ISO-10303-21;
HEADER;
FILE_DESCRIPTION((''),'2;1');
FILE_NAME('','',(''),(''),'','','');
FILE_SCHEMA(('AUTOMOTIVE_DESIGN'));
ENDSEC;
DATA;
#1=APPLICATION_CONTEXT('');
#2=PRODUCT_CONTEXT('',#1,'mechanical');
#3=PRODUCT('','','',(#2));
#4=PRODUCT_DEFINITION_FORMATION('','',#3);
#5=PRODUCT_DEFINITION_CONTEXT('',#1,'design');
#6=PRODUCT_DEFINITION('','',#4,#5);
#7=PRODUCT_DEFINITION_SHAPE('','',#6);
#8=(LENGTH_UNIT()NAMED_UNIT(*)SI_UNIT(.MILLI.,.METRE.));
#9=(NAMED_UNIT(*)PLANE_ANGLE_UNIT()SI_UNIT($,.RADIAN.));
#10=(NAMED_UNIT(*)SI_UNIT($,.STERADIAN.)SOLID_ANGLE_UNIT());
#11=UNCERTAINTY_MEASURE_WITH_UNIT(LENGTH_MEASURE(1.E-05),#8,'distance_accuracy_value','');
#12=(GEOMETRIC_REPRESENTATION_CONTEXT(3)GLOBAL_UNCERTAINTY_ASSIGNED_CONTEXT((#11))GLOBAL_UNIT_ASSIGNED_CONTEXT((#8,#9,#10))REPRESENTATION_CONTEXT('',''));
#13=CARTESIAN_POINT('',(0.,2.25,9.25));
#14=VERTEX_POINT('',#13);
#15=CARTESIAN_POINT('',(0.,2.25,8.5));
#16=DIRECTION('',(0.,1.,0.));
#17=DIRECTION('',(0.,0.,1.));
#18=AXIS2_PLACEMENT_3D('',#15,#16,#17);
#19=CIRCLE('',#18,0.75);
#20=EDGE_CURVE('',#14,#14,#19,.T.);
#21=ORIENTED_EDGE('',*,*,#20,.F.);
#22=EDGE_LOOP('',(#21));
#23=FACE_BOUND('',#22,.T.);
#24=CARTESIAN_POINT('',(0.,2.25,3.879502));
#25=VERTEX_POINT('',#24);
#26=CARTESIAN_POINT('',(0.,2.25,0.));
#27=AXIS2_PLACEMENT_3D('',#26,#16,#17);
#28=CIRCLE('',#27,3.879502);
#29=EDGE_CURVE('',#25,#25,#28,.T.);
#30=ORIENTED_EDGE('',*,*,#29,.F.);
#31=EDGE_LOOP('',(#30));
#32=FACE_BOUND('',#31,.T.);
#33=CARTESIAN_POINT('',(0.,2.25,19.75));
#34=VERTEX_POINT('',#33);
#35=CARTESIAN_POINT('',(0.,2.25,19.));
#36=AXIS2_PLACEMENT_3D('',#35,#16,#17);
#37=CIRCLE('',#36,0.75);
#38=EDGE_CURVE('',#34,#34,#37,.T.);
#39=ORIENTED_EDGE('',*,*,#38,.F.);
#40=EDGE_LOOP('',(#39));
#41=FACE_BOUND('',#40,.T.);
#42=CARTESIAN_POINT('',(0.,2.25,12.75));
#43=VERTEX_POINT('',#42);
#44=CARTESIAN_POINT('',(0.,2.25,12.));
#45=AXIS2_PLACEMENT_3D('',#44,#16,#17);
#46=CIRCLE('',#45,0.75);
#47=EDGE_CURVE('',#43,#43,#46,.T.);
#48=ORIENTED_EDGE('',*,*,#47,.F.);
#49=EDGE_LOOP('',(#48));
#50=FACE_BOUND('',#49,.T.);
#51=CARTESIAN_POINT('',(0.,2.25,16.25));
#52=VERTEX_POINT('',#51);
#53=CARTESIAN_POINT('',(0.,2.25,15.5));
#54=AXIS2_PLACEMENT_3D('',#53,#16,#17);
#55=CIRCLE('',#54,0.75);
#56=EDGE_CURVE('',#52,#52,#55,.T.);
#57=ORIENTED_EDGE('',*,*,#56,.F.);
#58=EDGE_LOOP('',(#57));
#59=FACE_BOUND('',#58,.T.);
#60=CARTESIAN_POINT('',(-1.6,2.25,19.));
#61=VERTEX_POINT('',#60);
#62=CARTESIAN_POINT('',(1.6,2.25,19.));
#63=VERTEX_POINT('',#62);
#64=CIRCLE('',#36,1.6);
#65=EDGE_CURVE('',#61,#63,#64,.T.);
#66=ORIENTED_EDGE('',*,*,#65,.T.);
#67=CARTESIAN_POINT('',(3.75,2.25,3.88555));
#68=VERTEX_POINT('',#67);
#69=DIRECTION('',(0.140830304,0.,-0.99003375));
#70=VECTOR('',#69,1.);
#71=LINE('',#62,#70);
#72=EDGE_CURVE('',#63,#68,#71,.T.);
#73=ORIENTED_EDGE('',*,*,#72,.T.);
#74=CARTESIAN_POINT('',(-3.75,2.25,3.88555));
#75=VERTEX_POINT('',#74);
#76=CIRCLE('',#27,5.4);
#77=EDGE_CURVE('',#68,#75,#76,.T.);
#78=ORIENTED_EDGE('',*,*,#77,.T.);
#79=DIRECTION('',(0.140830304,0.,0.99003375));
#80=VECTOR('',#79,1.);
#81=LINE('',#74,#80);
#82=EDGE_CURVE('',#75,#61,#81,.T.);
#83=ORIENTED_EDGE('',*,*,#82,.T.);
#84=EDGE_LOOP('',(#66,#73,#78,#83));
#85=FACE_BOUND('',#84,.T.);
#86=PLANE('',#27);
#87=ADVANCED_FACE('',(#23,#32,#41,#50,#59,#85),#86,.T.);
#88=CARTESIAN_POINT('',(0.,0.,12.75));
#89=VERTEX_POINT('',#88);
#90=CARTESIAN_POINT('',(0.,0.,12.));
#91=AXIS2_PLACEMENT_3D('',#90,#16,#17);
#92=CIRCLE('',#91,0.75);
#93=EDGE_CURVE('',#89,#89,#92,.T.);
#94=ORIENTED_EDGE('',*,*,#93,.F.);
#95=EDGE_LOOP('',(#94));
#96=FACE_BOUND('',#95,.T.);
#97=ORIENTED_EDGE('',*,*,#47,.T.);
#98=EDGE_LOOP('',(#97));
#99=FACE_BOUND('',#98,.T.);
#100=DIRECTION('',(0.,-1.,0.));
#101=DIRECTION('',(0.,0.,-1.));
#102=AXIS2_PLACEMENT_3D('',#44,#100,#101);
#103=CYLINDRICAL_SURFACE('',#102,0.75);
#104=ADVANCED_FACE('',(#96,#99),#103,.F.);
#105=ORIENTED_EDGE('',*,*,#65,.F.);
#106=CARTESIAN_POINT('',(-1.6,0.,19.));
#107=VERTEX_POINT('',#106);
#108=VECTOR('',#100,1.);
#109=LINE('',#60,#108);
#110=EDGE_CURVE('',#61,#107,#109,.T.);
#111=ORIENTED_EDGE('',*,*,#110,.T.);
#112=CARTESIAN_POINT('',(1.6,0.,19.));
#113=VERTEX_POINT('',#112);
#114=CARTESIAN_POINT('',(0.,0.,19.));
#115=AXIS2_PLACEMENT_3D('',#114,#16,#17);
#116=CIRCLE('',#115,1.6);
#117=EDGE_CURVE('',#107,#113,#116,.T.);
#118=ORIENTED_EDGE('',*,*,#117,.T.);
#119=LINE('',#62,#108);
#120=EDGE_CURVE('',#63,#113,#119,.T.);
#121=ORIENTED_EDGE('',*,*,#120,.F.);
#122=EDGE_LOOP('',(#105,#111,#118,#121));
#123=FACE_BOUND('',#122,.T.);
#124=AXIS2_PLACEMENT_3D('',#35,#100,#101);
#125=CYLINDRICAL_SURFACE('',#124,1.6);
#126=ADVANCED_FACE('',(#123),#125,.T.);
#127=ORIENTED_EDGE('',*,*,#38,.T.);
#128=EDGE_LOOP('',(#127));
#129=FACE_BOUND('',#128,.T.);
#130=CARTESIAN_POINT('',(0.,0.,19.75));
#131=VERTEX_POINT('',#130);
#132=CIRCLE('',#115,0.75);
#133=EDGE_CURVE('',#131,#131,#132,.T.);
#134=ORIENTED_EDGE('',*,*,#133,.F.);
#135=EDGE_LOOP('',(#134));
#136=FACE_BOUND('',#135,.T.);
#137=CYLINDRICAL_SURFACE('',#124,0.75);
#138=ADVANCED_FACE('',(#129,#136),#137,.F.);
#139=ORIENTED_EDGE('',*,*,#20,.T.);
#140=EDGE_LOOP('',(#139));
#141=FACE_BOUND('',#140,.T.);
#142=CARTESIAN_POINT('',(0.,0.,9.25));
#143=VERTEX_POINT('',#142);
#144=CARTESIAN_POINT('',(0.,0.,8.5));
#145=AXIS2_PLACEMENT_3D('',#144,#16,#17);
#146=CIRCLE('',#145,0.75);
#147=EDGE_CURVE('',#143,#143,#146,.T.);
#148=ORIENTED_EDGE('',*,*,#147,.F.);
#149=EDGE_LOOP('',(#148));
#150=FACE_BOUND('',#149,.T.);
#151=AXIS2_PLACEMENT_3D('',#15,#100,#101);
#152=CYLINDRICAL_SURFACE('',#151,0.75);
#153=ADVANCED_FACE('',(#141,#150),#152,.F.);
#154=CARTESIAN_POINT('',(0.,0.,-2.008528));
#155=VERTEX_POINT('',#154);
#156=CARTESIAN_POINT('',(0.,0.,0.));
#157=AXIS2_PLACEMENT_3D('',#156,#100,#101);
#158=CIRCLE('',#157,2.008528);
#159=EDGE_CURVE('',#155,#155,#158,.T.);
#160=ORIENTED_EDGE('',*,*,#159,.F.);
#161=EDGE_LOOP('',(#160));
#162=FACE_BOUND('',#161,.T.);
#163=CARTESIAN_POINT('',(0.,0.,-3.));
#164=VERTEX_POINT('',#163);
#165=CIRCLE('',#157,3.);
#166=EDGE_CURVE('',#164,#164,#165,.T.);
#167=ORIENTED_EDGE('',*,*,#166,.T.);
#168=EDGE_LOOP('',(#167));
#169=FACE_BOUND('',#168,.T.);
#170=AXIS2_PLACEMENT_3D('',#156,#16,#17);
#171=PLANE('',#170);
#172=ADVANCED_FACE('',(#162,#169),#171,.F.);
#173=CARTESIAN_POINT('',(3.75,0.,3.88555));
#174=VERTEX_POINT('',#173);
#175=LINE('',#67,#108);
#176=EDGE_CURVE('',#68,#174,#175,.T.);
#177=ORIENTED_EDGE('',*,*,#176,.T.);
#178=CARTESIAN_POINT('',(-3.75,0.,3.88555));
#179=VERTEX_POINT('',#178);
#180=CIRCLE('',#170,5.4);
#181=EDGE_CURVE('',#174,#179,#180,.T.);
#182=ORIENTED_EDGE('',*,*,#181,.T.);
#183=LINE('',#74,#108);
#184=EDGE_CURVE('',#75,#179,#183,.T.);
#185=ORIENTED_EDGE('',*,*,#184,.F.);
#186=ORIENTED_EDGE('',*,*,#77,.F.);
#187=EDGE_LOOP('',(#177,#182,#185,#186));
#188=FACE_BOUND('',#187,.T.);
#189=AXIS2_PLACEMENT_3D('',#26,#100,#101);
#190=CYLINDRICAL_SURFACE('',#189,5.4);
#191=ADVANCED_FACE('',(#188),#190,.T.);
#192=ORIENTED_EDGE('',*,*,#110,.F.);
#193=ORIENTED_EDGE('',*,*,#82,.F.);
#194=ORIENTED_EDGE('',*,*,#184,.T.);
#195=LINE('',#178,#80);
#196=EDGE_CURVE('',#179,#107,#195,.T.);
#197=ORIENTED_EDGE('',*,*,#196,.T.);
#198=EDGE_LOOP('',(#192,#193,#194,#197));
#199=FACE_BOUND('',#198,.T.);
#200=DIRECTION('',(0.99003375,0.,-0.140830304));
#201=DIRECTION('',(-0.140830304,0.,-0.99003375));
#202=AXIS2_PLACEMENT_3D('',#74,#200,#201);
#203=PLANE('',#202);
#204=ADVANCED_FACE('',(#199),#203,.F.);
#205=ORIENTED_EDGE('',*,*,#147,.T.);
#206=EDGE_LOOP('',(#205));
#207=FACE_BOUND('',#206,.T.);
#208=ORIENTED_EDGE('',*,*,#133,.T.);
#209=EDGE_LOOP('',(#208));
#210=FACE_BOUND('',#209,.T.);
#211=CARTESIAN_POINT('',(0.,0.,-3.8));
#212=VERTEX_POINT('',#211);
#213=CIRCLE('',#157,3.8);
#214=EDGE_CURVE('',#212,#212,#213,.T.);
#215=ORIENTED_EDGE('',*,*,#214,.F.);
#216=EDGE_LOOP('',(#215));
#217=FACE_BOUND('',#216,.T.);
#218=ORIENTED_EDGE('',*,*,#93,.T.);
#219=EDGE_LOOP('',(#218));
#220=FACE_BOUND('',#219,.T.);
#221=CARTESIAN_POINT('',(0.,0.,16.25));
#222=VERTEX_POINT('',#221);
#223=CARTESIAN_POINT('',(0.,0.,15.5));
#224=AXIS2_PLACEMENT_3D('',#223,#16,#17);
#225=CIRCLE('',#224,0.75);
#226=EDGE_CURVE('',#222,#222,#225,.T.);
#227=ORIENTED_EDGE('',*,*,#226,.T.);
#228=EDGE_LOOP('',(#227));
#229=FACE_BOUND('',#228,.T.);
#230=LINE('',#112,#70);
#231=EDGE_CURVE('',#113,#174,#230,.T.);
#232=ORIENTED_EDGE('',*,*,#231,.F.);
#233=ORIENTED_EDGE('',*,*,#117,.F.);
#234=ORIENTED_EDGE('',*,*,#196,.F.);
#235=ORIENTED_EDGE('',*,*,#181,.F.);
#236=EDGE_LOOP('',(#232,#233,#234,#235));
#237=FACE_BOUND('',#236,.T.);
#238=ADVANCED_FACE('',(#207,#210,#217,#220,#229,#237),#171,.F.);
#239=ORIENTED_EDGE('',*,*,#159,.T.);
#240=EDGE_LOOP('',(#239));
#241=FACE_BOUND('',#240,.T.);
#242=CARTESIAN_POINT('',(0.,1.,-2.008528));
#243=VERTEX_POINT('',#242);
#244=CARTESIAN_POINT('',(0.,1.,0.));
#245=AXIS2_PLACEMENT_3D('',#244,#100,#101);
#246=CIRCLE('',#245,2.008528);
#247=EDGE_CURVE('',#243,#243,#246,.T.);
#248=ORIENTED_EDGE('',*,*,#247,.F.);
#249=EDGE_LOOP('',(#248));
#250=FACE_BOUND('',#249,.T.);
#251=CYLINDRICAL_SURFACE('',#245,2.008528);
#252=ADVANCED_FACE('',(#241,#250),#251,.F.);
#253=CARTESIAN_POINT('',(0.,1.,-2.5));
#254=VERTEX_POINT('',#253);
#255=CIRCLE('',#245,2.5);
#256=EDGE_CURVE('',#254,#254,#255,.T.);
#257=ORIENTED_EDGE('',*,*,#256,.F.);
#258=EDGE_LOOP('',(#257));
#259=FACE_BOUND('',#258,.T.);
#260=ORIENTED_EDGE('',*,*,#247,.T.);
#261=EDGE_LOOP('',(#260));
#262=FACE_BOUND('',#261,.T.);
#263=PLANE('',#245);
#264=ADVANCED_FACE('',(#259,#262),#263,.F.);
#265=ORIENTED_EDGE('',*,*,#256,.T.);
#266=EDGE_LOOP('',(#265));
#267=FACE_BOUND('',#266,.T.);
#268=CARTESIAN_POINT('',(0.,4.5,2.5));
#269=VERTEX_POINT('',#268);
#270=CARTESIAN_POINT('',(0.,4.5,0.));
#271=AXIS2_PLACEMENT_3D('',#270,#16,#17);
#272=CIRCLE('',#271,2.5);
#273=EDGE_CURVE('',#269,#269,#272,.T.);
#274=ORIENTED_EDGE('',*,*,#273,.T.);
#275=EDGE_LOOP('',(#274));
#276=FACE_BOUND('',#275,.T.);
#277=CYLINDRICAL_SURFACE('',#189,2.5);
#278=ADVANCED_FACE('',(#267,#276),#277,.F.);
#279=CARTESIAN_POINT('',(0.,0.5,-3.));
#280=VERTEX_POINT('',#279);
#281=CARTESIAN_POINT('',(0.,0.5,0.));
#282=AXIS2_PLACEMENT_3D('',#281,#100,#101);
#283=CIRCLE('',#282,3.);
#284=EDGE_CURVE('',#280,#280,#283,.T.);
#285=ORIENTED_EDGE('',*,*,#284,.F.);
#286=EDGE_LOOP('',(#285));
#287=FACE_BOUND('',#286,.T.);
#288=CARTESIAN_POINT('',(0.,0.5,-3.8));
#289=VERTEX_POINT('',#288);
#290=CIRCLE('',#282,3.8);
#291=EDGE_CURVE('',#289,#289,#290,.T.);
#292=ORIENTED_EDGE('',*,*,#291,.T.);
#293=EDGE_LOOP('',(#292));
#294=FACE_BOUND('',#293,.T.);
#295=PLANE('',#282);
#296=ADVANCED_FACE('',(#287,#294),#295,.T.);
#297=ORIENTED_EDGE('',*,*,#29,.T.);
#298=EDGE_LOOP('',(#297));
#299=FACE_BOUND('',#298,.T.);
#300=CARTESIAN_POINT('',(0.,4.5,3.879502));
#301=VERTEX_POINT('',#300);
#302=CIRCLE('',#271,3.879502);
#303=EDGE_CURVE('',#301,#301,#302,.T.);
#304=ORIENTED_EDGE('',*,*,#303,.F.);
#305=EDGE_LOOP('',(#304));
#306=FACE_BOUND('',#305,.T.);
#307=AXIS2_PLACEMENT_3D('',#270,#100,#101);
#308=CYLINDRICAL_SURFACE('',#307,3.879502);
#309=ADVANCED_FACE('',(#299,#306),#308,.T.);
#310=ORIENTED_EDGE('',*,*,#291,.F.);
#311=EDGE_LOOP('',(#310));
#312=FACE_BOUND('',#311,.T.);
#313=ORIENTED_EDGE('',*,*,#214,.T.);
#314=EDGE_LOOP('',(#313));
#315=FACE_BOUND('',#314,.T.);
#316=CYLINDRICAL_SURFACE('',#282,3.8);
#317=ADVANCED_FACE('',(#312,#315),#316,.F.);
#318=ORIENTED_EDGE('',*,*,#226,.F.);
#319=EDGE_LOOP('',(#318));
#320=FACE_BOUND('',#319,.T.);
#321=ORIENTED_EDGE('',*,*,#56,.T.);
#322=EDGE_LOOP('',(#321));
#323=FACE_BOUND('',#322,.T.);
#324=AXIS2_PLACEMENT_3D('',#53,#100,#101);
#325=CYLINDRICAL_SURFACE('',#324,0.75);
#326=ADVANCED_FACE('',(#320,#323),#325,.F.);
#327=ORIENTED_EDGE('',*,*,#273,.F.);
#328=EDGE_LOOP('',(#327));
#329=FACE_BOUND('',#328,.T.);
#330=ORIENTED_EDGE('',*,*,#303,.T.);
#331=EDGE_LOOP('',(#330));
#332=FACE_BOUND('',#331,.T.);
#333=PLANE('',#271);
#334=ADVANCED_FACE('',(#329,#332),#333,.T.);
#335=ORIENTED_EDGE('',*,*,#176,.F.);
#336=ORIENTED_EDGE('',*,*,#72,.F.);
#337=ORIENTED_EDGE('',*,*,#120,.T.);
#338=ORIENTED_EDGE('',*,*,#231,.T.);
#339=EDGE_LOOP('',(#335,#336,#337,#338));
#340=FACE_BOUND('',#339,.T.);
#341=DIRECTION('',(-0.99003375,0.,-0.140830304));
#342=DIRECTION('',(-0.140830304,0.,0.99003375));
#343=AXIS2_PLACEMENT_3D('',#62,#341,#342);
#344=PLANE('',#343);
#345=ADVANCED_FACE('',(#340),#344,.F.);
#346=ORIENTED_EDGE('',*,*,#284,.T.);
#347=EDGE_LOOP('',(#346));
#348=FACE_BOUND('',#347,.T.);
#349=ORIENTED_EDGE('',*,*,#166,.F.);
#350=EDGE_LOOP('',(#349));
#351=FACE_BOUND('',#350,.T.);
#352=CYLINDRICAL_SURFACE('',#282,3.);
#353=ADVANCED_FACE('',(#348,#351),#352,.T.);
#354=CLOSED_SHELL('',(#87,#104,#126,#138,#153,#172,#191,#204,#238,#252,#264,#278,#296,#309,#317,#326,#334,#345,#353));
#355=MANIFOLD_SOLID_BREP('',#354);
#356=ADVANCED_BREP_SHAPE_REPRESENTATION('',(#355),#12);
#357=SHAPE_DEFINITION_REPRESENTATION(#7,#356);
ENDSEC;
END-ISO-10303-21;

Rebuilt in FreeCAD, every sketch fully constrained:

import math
import FreeCAD as App
import Part
import Sketcher
from FreeCAD import Vector

doc = App.newDocument("Part")
body = doc.addObject("PartDesign::Body", "Body")

sketch1 = body.newObject("Sketcher::SketchObject", "Sketch")
sketch1.AttachmentSupport = (doc.getObject("XZ_Plane"), [""])
sketch1.MapMode = "FlatFace"
sketch1.addGeometry([
    Part.LineSegment(Vector(-1.6, -19, 0), Vector(-3.8, -3.9, 0)),
    Part.ArcOfCircle(Part.Circle(Vector(0, 0, 0), Vector(0, 0, 1), 5.4), math.radians(134), math.radians(226)),
    Part.LineSegment(Vector(-3.8, 3.9, 0), Vector(-1.6, 19, 0)),
    Part.ArcOfCircle(Part.Circle(Vector(0, 19, 0), Vector(0, 0, 1), 1.6), math.radians(0), math.radians(180)),
    Part.LineSegment(Vector(1.6, 19, 0), Vector(3.8, 3.9, 0)),
    Part.ArcOfCircle(Part.Circle(Vector(0, 0, 0), Vector(0, 0, 1), 5.4), math.radians(-46), math.radians(46)),
    Part.LineSegment(Vector(3.8, -3.9, 0), Vector(1.6, -19, 0)),
    Part.ArcOfCircle(Part.Circle(Vector(0, -19, 0), Vector(0, 0, 1), 1.6), math.radians(180), math.radians(360)),
    Part.Circle(Vector(0, 19, 0), Vector(0, 0, 1), 0.8),
    Part.Circle(Vector(0, 15.5, 0), Vector(0, 0, 1), 0.8),
    Part.Circle(Vector(0, 12, 0), Vector(0, 0, 1), 0.8),
    Part.Circle(Vector(0, 8.5, 0), Vector(0, 0, 1), 0.8),
    Part.Circle(Vector(0, 0, 0), Vector(0, 0, 1), 2.5),
    Part.Circle(Vector(0, -8.5, 0), Vector(0, 0, 1), 0.8),
    Part.Circle(Vector(0, -12, 0), Vector(0, 0, 1), 0.8),
    Part.Circle(Vector(0, -15.5, 0), Vector(0, 0, 1), 0.8),
    Part.Circle(Vector(0, -19, 0), Vector(0, 0, 1), 0.8),
], False)
sketch1.addConstraint([
    Sketcher.Constraint("Coincident", 0, 2, 1, 2),
    Sketcher.Constraint("Coincident", 1, 1, 2, 1),
    Sketcher.Constraint("Coincident", 2, 2, 3, 2),
    Sketcher.Constraint("Coincident", 3, 1, 4, 1),
    Sketcher.Constraint("Coincident", 4, 2, 5, 2),
    Sketcher.Constraint("Coincident", 5, 1, 6, 1),
    Sketcher.Constraint("Coincident", 6, 2, 7, 2),
    Sketcher.Constraint("Coincident", 7, 1, 0, 1),
    Sketcher.Constraint("Coincident", 1, 3, -1, 1),
    Sketcher.Constraint("Coincident", 5, 3, -1, 1),
    Sketcher.Constraint("Coincident", 12, 3, -1, 1),
    Sketcher.Constraint("Coincident", 8, 3, 3, 3),
    Sketcher.Constraint("Coincident", 16, 3, 7, 3),
    Sketcher.Constraint("Equal", 1, 5),
    Sketcher.Constraint("Equal", 3, 7),
    Sketcher.Constraint("Equal", 8, 9),
    Sketcher.Constraint("Equal", 9, 10),
    Sketcher.Constraint("Equal", 10, 11),
    Sketcher.Constraint("Equal", 11, 13),
    Sketcher.Constraint("Equal", 13, 14),
    Sketcher.Constraint("Equal", 14, 15),
    Sketcher.Constraint("Equal", 15, 16),
    Sketcher.Constraint("Symmetric", 3, 3, 7, 3, -1, 1),
    Sketcher.Constraint("Symmetric", 11, 3, 13, 3, -1, 1),
    Sketcher.Constraint("Symmetric", 10, 3, 14, 3, -1, 1),
    Sketcher.Constraint("Symmetric", 9, 3, 15, 3, -1, 1),
    Sketcher.Constraint("Symmetric", 2, 2, 3, 1, -2),
    Sketcher.Constraint("PointOnObject", 9, 3, -2),
    Sketcher.Constraint("PointOnObject", 10, 3, -2),
    Sketcher.Constraint("PointOnObject", 11, 3, -2),
    Sketcher.Constraint("Parallel", 0, 4),
    Sketcher.Constraint("Parallel", 2, 6),
    Sketcher.Constraint("Horizontal", 8, 3, 2, 2),
    Sketcher.Constraint("Horizontal", 1, 1, 4, 2),
    Sketcher.Constraint("Horizontal", 0, 2, 5, 1),
    Sketcher.Constraint("Horizontal", 16, 3, 6, 2),
    Sketcher.Constraint("Diameter", 12, 5.0),
    Sketcher.Constraint("Diameter", 8, 1.5),
    Sketcher.Constraint("Radius", 1, 5.4),
    Sketcher.Constraint("Radius", 3, 1.6),
    Sketcher.Constraint("DistanceY", -1, 1, 3, 3, 19.0),
    Sketcher.Constraint("DistanceY", -1, 1, 10, 3, 12.0),
    Sketcher.Constraint("DistanceY", 11, 3, 9, 3, 7.0),
    Sketcher.Constraint("DistanceY", 13, 3, 11, 3, 17.0),
    Sketcher.Constraint("DistanceX", 1, 1, 4, 2, 7.5),
])
pad1 = body.newObject("PartDesign::Pad", "Pad")
pad1.Profile = sketch1
pad1.Length = 2.25
pad1.Reversed = True

sketch2 = body.newObject("Sketcher::SketchObject", "Sketch001")
sketch2.AttachmentSupport = (doc.getObject("XZ_Plane"), [""])
sketch2.MapMode = "FlatFace"
sketch2.AttachmentOffset = App.Placement(Vector(0, 0, -2.25), App.Rotation())
sketch2.addGeometry([
    Part.Circle(Vector(0, 0, 0), Vector(0, 0, 1), 3.9),
    Part.Circle(Vector(0, 0, 0), Vector(0, 0, 1), 2.5),
], False)
sketch2.addConstraint([
    Sketcher.Constraint("Coincident", 0, 3, -1, 1),
    Sketcher.Constraint("Coincident", 1, 3, -1, 1),
    Sketcher.Constraint("Diameter", 1, 5.0),
    Sketcher.Constraint("Diameter", 0, 7.759004),
])
pad2 = body.newObject("PartDesign::Pad", "Pad001")
pad2.Profile = sketch2
pad2.Length = 2.25
pad2.Reversed = True

sketch3 = body.newObject("Sketcher::SketchObject", "Sketch002")
sketch3.AttachmentSupport = (doc.getObject("XZ_Plane"), [""])
sketch3.MapMode = "FlatFace"
sketch3.addGeometry([
    Part.Circle(Vector(0, 0, 0), Vector(0, 0, 1), 2.5),
    Part.Circle(Vector(0, 0, 0), Vector(0, 0, 1), 2),
], False)
sketch3.addConstraint([
    Sketcher.Constraint("Coincident", 0, 3, -1, 1),
    Sketcher.Constraint("Coincident", 1, 3, -1, 1),
    Sketcher.Constraint("Diameter", 0, 5.0),
    Sketcher.Constraint("Diameter", 1, 4.017056),
])
pad3 = body.newObject("PartDesign::Pad", "Pad002")
pad3.Profile = sketch3
pad3.Length = 1
pad3.Reversed = True

sketch4 = body.newObject("Sketcher::SketchObject", "Sketch003")
sketch4.AttachmentSupport = (doc.getObject("XZ_Plane"), [""])
sketch4.MapMode = "FlatFace"
sketch4.addGeometry([
    Part.Circle(Vector(0, 0, 0), Vector(0, 0, 1), 3.8),
    Part.Circle(Vector(0, 0, 0), Vector(0, 0, 1), 3),
], False)
sketch4.addConstraint([
    Sketcher.Constraint("Coincident", 0, 3, -1, 1),
    Sketcher.Constraint("Coincident", 1, 3, -1, 1),
    Sketcher.Constraint("Diameter", 1, 6.0),
    Sketcher.Constraint("Diameter", 0, 7.6),
])
pocket1 = body.newObject("PartDesign::Pocket", "Pocket")
pocket1.Profile = sketch4
pocket1.Length = 0.5

sketch5 = body.newObject("Sketcher::SketchObject", "Sketch004")
sketch5.AttachmentSupport = (doc.getObject("XZ_Plane"), [""])
sketch5.MapMode = "FlatFace"
sketch5.addGeometry([
    Part.LineSegment(Vector(-3.8, -3.9, 0), Vector(-1.6, -19, 0)),
    Part.ArcOfCircle(Part.Circle(Vector(0, -19, 0), Vector(0, 0, 1), 1.6), math.radians(180), math.radians(360)),
    Part.LineSegment(Vector(1.6, -19, 0), Vector(3.8, -3.9, 0)),
    Part.ArcOfCircle(Part.Circle(Vector(0, 0, 0), Vector(0, 0, 1), 5.4), math.radians(-134), math.radians(-46)),
], False)
sketch5.addConstraint([
    Sketcher.Constraint("Coincident", 0, 2, 1, 1),
    Sketcher.Constraint("Coincident", 1, 2, 2, 1),
    Sketcher.Constraint("Coincident", 2, 2, 3, 2),
    Sketcher.Constraint("Coincident", 3, 1, 0, 1),
    Sketcher.Constraint("Coincident", 3, 3, -1, 1),
    Sketcher.Constraint("Symmetric", 0, 2, 1, 2, -2),
    Sketcher.Constraint("Horizontal", 1, 3, 0, 2),
    Sketcher.Constraint("Horizontal", 2, 2, 3, 1),
    Sketcher.Constraint("Radius", 1, 1.6),
    Sketcher.Constraint("Radius", 3, 5.4),
    Sketcher.Constraint("DistanceY", 1, 3, -1, 1, 19.0),
    Sketcher.Constraint("DistanceX", 3, 1, 2, 2, 7.5),
])
pocket2 = body.newObject("PartDesign::Pocket", "Pocket001")
pocket2.Profile = sketch5
pocket2.Type = "ThroughAll"

doc.recompute()
